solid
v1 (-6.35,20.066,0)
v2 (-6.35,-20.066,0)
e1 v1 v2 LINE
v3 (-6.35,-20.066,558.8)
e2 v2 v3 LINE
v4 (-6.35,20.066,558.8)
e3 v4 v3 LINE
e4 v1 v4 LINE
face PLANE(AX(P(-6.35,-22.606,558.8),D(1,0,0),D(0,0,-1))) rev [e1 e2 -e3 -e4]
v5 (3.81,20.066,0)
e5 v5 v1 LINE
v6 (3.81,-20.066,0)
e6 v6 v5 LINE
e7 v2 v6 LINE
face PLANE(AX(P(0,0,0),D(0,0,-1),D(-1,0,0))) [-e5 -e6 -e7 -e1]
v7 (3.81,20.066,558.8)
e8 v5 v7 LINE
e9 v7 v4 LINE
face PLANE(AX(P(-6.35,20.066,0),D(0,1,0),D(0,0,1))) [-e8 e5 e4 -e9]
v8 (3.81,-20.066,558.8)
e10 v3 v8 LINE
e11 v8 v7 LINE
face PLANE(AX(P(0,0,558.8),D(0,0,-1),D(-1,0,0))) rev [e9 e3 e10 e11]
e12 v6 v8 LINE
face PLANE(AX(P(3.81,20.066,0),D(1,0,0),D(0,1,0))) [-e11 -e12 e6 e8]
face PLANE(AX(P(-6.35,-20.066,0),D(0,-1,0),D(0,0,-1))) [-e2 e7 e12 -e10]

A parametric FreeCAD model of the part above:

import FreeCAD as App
import Part
import Sketcher

V = App.Vector
Q = App.Units.Quantity

doc = App.newDocument("Part")
body = doc.addObject("PartDesign::Body", "Body")

# Sketch on XY plane
sketch1 = doc.addObject("Sketcher::SketchObject", "Sketch")
body.addObject(sketch1)
sketch1.AttachmentSupport = (doc.XY_Plane, [""])
sketch1.MapMode = "FlatFace"
sketch1.addGeometry([
    Part.LineSegment(V(-6, 23, 0), V(-6, -23, 0)),
    Part.LineSegment(V(-6, -23, 0), V(6, -23, 0)),
    Part.LineSegment(V(6, -23, 0), V(6, 23, 0)),
    Part.LineSegment(V(6, 23, 0), V(-6, 23, 0)),
], False)
sketch1.addConstraint([
    Sketcher.Constraint("Coincident", 0, 2, 1, 1),
    Sketcher.Constraint("Coincident", 1, 2, 2, 1),
    Sketcher.Constraint("Coincident", 2, 2, 3, 1),
    Sketcher.Constraint("Coincident", 3, 2, 0, 1),
    Sketcher.Constraint("Vertical", 0),
    Sketcher.Constraint("Horizontal", 1),
    Sketcher.Constraint("Vertical", 2),
    Sketcher.Constraint("Horizontal", 3),
    Sketcher.Constraint("Symmetric", 0, 2, 2, 2, -1, 1),
    Sketcher.Constraint("DistanceX", 1, 1, 1, 2, Q("0.5 in")),
    Sketcher.Constraint("DistanceY", 0, 2, 0, 1, Q("1.78 in")),
])
pad1 = doc.addObject("PartDesign::Pad", "Pad")
body.addObject(pad1)
pad1.Profile = sketch1
pad1.Length = Q("22 in")

# Sketch on XY plane
sketch2 = doc.addObject("Sketcher::SketchObject", "Sketch001")
body.addObject(sketch2)
sketch2.AttachmentSupport = (doc.XY_Plane, [""])
sketch2.MapMode = "FlatFace"
sketch2.AttachmentOffset = App.Placement(V(0, 0, 22 * 25.4), App.Rotation())
sketch2.addGeometry([
    Part.LineSegment(V(-63, 80, 0), V(-63, -80, 0)),  # 0
    Part.LineSegment(V(-63, -80, 0), V(63, -80, 0)),  # 1
    Part.LineSegment(V(63, -80, 0), V(63, 80, 0)),  # 2
    Part.LineSegment(V(63, 80, 0), V(-63, 80, 0)),  # 3
    Part.LineSegment(V(4, -20, 0), V(-6, -20, 0)),  # 4
    Part.LineSegment(V(-6, -20, 0), V(-6, 20, 0)),  # 5
    Part.LineSegment(V(-6, 20, 0), V(4, 20, 0)),  # 6
    Part.LineSegment(V(4, 20, 0), V(4, -20, 0)),  # 7
], False)
sketch2.addConstraint([
    Sketcher.Constraint("Coincident", 0, 2, 1, 1),
    Sketcher.Constraint("Coincident", 1, 2, 2, 1),
    Sketcher.Constraint("Coincident", 2, 2, 3, 1),
    Sketcher.Constraint("Coincident", 3, 2, 0, 1),
    Sketcher.Constraint("Coincident", 4, 2, 5, 1),
    Sketcher.Constraint("Coincident", 5, 2, 6, 1),
    Sketcher.Constraint("Coincident", 6, 2, 7, 1),
    Sketcher.Constraint("Coincident", 7, 2, 4, 1),
    Sketcher.Constraint("Vertical", 0),
    Sketcher.Constraint("Horizontal", 1),
    Sketcher.Constraint("Vertical", 2),
    Sketcher.Constraint("Horizontal", 3),
    Sketcher.Constraint("Horizontal", 4),
    Sketcher.Constraint("Vertical", 5),
    Sketcher.Constraint("Horizontal", 6),
    Sketcher.Constraint("Vertical", 7),
    Sketcher.Constraint("Symmetric", 0, 2, 2, 2, -1, 1),
    Sketcher.Constraint("DistanceX", 4, 2, 4, 1, Q("0.4 in")),
    Sketcher.Constraint("DistanceY", 5, 1, 5, 2, Q("1.58 in")),
    Sketcher.Constraint("DistanceX", 4, 2, -1, 1, Q("0.25 in")),
    Sketcher.Constraint("DistanceY", 4, 2, -1, 1, Q("0.79 in")),
    Sketcher.Constraint("DistanceX", 1, 1, 1, 2, Q("126.854 mm")),
    Sketcher.Constraint("DistanceY", 0, 2, 0, 1, Q("159.366 mm")),
])
pocket1 = doc.addObject("PartDesign::Pocket", "Pocket")
body.addObject(pocket1)
pocket1.Profile = sketch2
pocket1.Type = "ThroughAll"

doc.recompute()
